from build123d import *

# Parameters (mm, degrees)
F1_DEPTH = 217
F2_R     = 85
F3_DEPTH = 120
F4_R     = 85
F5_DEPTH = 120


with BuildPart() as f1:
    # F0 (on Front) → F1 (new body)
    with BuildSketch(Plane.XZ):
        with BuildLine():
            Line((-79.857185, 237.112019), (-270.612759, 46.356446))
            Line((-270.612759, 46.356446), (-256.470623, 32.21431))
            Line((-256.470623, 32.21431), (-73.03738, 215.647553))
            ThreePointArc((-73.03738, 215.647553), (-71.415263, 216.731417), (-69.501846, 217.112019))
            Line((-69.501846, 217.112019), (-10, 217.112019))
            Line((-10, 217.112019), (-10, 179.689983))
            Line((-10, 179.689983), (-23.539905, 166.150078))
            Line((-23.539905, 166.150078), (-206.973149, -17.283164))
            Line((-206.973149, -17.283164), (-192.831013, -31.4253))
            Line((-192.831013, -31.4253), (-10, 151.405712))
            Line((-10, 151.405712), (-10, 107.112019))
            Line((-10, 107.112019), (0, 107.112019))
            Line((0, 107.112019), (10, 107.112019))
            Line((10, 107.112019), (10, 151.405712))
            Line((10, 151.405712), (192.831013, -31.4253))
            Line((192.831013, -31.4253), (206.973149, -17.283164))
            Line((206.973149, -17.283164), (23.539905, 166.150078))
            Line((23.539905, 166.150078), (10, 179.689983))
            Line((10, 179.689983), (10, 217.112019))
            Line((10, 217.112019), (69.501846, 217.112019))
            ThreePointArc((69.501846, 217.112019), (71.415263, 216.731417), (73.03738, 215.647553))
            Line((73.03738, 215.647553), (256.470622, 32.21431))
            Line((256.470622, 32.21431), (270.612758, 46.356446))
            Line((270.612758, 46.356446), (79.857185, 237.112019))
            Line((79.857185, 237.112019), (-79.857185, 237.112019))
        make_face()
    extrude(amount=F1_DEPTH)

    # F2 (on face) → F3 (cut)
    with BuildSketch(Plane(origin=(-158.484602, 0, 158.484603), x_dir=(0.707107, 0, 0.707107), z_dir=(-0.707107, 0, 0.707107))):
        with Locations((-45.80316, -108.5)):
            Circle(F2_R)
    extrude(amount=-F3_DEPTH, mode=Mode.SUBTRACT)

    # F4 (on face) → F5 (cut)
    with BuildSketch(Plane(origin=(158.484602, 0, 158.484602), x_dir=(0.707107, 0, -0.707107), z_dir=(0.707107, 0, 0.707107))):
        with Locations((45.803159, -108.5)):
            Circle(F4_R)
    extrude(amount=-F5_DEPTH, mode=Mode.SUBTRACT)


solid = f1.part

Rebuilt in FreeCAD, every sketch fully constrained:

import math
import FreeCAD as App
import Part
import Sketcher
Q = App.Units.Quantity

doc = App.newDocument("Part")
body = doc.addObject("PartDesign::Body", "Body")

# Sketch on XZ plane
sketch1 = doc.addObject("Sketcher::SketchObject", "Sketch")
body.addObject(sketch1)
sketch1.AttachmentSupport = (doc.XZ_Plane, [""])
sketch1.MapMode = "FlatFace"
sketch1.addGeometry([
    Part.LineSegment(App.Vector(-79.9, 237.1, 0), App.Vector(-270.6, 46.4, 0)),  # 0
    Part.LineSegment(App.Vector(-270.6, 46.4, 0), App.Vector(-256.5, 32.2, 0)),  # 1
    Part.LineSegment(App.Vector(-256.5, 32.2, 0), App.Vector(-73, 215.6, 0)),  # 2
    Part.ArcOfCircle(Part.Circle(App.Vector(-69.5, 212.1, 0), App.Vector(0, 0, 1), 5), math.radians(90), math.radians(135)),  # 3
    Part.LineSegment(App.Vector(-69.5, 217.1, 0), App.Vector(-10, 217.1, 0)),  # 4
    Part.LineSegment(App.Vector(-10, 217.1, 0), App.Vector(-10, 179.7, 0)),  # 5
    Part.LineSegment(App.Vector(-10, 179.7, 0), App.Vector(-23.5, 166.2, 0)),  # 6
    Part.LineSegment(App.Vector(-23.5, 166.2, 0), App.Vector(-207, -17.3, 0)),  # 7
    Part.LineSegment(App.Vector(-207, -17.3, 0), App.Vector(-192.8, -31.4, 0)),  # 8
    Part.LineSegment(App.Vector(-192.8, -31.4, 0), App.Vector(-10, 151.4, 0)),  # 9
    Part.LineSegment(App.Vector(-10, 151.4, 0), App.Vector(-10, 107.1, 0)),  # 10
    Part.LineSegment(App.Vector(-10, 107.1, 0), App.Vector(10, 107.1, 0)),  # 11
    Part.LineSegment(App.Vector(10, 107.1, 0), App.Vector(10, 151.4, 0)),  # 12
    Part.LineSegment(App.Vector(10, 151.4, 0), App.Vector(192.8, -31.4, 0)),  # 13
    Part.LineSegment(App.Vector(192.8, -31.4, 0), App.Vector(207, -17.3, 0)),  # 14
    Part.LineSegment(App.Vector(207, -17.3, 0), App.Vector(23.5, 166.2, 0)),  # 15
    Part.LineSegment(App.Vector(23.5, 166.2, 0), App.Vector(10, 179.7, 0)),  # 16
    Part.LineSegment(App.Vector(10, 179.7, 0), App.Vector(10, 217.1, 0)),  # 17
    Part.LineSegment(App.Vector(10, 217.1, 0), App.Vector(69.5, 217.1, 0)),  # 18
    Part.ArcOfCircle(Part.Circle(App.Vector(69.5, 212.1, 0), App.Vector(0, 0, 1), 5), math.radians(45), math.radians(90)),  # 19
    Part.LineSegment(App.Vector(73, 215.6, 0), App.Vector(256.5, 32.2, 0)),  # 20
    Part.LineSegment(App.Vector(256.5, 32.2, 0), App.Vector(270.6, 46.4, 0)),  # 21
    Part.LineSegment(App.Vector(270.6, 46.4, 0), App.Vector(79.9, 237.1, 0)),  # 22
    Part.LineSegment(App.Vector(79.9, 237.1, 0), App.Vector(-79.9, 237.1, 0)),  # 23
], False)
sketch1.addConstraint([
    Sketcher.Constraint("Coincident", 0, 2, 1, 1),
    Sketcher.Constraint("Coincident", 1, 2, 2, 1),
    Sketcher.Constraint("Tangent", 2, 2, 3, 2),
    Sketcher.Constraint("Tangent", 3, 1, 4, 1),
    Sketcher.Constraint("Coincident", 4, 2, 5, 1),
    Sketcher.Constraint("Coincident", 5, 2, 6, 1),
    Sketcher.Constraint("Coincident", 6, 2, 7, 1),
    Sketcher.Constraint("Coincident", 7, 2, 8, 1),
    Sketcher.Constraint("Coincident", 8, 2, 9, 1),
    Sketcher.Constraint("Coincident", 9, 2, 10, 1),
    Sketcher.Constraint("Coincident", 10, 2, 11, 1),
    Sketcher.Constraint("Coincident", 11, 2, 12, 1),
    Sketcher.Constraint("Coincident", 12, 2, 13, 1),
    Sketcher.Constraint("Coincident", 13, 2, 14, 1),
    Sketcher.Constraint("Coincident", 14, 2, 15, 1),
    Sketcher.Constraint("Coincident", 15, 2, 16, 1),
    Sketcher.Constraint("Coincident", 16, 2, 17, 1),
    Sketcher.Constraint("Coincident", 17, 2, 18, 1),
    Sketcher.Constraint("Tangent", 18, 2, 19, 2),
    Sketcher.Constraint("Tangent", 19, 1, 20, 1),
    Sketcher.Constraint("Coincident", 20, 2, 21, 1),
    Sketcher.Constraint("Coincident", 21, 2, 22, 1),
    Sketcher.Constraint("Coincident", 22, 2, 23, 1),
    Sketcher.Constraint("Coincident", 23, 2, 0, 1),
    Sketcher.Constraint("Horizontal", 4),
    Sketcher.Constraint("Vertical", 5),
    Sketcher.Constraint("Vertical", 10),
    Sketcher.Constraint("Horizontal", 11),
    Sketcher.Constraint("Vertical", 12),
    Sketcher.Constraint("Vertical", 17),
    Sketcher.Constraint("Horizontal", 18),
    Sketcher.Constraint("Horizontal", 23),
    Sketcher.Constraint("Equal", 3, 19),
    Sketcher.Constraint("Symmetric", 3, 3, 19, 3, -2),
    Sketcher.Constraint("Symmetric", 9, 2, 12, 2, -2),
    Sketcher.Constraint("Symmetric", 8, 2, 13, 2, -2),
    Sketcher.Constraint("Symmetric", 7, 2, 14, 2, -2),
    Sketcher.Constraint("Symmetric", 6, 2, 15, 2, -2),
    Sketcher.Constraint("Symmetric", 5, 2, 16, 2, -2),
    Sketcher.Constraint("Symmetric", 1, 2, 20, 2, -2),
    Sketcher.Constraint("Symmetric", 0, 2, 21, 2, -2),
    Sketcher.Constraint("Perpendicular", 0, 1),
    Sketcher.Constraint("Perpendicular", 1, 2),
    Sketcher.Constraint("Parallel", 2, 6),
    Sketcher.Constraint("Parallel", 6, 7),
    Sketcher.Constraint("Perpendicular", 7, 8),
    Sketcher.Constraint("Perpendicular", 8, 9),
    Sketcher.Constraint("Perpendicular", 9, 13),
    Sketcher.Constraint("Perpendicular", 21, 22),
    Sketcher.Constraint("Vertical", 5, 2, 9, 2),
    Sketcher.Constraint("Equal", 2, 7),
    Sketcher.Constraint("Equal", 1, 8),
    Sketcher.Constraint("DistanceX", 11, 1, 11, 2, Q("20 mm")),
    Sketcher.Constraint("Distance", 1, Q("20.000001 mm")),
    Sketcher.Constraint("DistanceY", 10, 2, 4, 2, Q("110 mm")),
    Sketcher.Constraint("DistanceY", 18, 2, 22, 2, Q("20 mm")),
    Sketcher.Constraint("Radius", 3, Q("4.999998 mm")),
    Sketcher.Constraint("DistanceX", 23, 2, 23, 1, Q("159.71437 mm")),
    Sketcher.Constraint("DistanceY", 8, 2, -1, 1, Q("31.4253 mm")),
    Sketcher.Constraint("DistanceX", 7, 2, 3, 3, Q("137.471302 mm")),
    Sketcher.Constraint("Distance", 0, Q("269.769119 mm")),
    Sketcher.Constraint("DistanceY", 5, 2, 5, 1, Q("37.422036 mm")),
])
pad1 = doc.addObject("PartDesign::Pad", "Pad")
body.addObject(pad1)
pad1.Profile = sketch1
pad1.Length = 217

# Sketch on an angled plane
sketch2 = doc.addObject("Sketcher::SketchObject", "Sketch001")
body.addObject(sketch2)
sketch2.Placement = App.Placement(App.Vector(-158.484602, 0, 158.484603), App.Rotation(App.Vector(0.707106781, 0, 0.707106781), App.Vector(0, 0.999999999, 0), App.Vector(-0.707106781, 0, 0.707106781), "ZXY"))
sketch2.addGeometry(Part.Circle(App.Vector(-46, -108, 0), App.Vector(0, 0, 1), 85), False)
sketch2.addConstraint([
    Sketcher.Constraint("Diameter", 0, Q("170 mm")),
    Sketcher.Constraint("DistanceY", 0, 3, -1, 1, Q("108.5 mm")),
    Sketcher.Constraint("DistanceX", 0, 3, -1, 1, Q("45.80316 mm")),
])
pocket1 = doc.addObject("PartDesign::Pocket", "Pocket")
body.addObject(pocket1)
pocket1.Profile = sketch2
pocket1.Length = 120

# Sketch on an angled plane
sketch3 = doc.addObject("Sketcher::SketchObject", "Sketch002")
body.addObject(sketch3)
sketch3.Placement = App.Placement(App.Vector(158.484602, 0, 158.484602), App.Rotation(App.Vector(0.707106781, 0, -0.707106781), App.Vector(0, 0.999999999, 0), App.Vector(0.707106781, 0, 0.707106781), "ZXY"))
sketch3.addGeometry(Part.Circle(App.Vector(46, -108, 0), App.Vector(0, 0, 1), 85), False)
sketch3.addConstraint([
    Sketcher.Constraint("Diameter", 0, Q("170 mm")),
    Sketcher.Constraint("DistanceY", 0, 3, -1, 1, Q("108.5 mm")),
    Sketcher.Constraint("DistanceX", -1, 1, 0, 3, Q("45.803159 mm")),
])
pocket2 = doc.addObject("PartDesign::Pocket", "Pocket001")
body.addObject(pocket2)
pocket2.Profile = sketch3
pocket2.Length = 120

doc.recompute()
